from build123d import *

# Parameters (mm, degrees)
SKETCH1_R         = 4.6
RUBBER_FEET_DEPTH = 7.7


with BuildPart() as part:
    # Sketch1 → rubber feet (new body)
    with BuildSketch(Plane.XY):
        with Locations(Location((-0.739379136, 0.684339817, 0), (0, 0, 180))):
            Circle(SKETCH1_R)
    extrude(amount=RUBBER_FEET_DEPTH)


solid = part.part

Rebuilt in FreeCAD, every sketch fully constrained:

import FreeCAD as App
import Part
import Sketcher
Q = App.Units.Quantity

doc = App.newDocument("Part")
body = doc.addObject("PartDesign::Body", "Body")

sketch1 = body.newObject("Sketcher::SketchObject", "Sketch")
sketch1.AttachmentSupport = (doc.getObject("XY_Plane"), [""])
sketch1.MapMode = "FlatFace"
sketch1.addGeometry(Part.Circle(App.Vector(-0.739379, 0.68434, 0), App.Vector(0, 0, 1), 4.6), False)
sketch1.addConstraint([
    Sketcher.Constraint("Diameter", 0, Q("9.2 mm")),
    Sketcher.Constraint("DistanceX", 0, 3, -1, 1, Q("0.739379 mm")),
    Sketcher.Constraint("DistanceY", -1, 1, 0, 3, Q("0.68434 mm")),
])
pad1 = body.newObject("PartDesign::Pad", "Pad")
pad1.Profile = sketch1
pad1.Length = 7.7

doc.recompute()
